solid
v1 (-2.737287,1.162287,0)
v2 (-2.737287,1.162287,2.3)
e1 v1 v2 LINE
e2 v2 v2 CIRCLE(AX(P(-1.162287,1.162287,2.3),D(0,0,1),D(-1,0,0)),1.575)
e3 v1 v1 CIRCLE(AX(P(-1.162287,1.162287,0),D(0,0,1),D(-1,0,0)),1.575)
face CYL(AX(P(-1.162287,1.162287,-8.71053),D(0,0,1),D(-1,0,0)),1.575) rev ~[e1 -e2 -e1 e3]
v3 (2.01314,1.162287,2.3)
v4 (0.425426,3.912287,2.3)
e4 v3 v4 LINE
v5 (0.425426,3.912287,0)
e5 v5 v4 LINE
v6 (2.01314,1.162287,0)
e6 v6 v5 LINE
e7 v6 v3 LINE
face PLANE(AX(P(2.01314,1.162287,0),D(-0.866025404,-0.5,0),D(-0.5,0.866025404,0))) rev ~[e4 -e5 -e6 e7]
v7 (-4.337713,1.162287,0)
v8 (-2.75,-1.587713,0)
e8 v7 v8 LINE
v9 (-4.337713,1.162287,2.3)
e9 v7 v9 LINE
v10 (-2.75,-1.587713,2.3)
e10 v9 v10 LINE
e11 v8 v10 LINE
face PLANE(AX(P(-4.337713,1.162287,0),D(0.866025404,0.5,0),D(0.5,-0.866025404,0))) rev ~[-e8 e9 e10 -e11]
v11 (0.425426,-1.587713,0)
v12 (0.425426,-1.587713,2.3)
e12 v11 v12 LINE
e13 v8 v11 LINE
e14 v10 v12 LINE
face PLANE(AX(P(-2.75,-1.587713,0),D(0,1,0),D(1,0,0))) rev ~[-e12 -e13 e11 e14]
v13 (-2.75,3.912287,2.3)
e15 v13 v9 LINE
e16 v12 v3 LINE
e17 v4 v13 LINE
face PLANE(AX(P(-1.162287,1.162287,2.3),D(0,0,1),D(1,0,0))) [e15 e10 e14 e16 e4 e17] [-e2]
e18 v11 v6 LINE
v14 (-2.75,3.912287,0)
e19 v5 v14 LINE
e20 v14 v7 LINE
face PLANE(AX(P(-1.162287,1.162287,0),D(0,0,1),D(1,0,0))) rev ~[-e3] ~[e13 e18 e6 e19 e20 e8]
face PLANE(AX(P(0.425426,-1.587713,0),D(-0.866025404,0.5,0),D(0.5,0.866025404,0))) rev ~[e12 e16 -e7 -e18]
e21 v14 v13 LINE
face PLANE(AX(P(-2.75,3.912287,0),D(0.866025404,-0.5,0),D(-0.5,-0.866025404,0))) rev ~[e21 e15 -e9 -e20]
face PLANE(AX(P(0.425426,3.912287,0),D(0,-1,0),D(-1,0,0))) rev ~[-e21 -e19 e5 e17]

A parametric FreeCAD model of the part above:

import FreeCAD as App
import Part
import Sketcher
from FreeCAD import Vector
Q = App.Units.Quantity

doc = App.newDocument("Part")
params = doc.addObject("Spreadsheet::Sheet", "Params")
for row, (alias, value) in enumerate([
    ("pad1_length", "2.3 mm"),
    ("sketch2_diameter", "3.15 mm"),
    ("hole_diameter", "3.15 mm"),
], start=1):
    params.set(f"A{row}", alias)
    params.set(f"B{row}", "=" + value)
    params.setAlias(f"B{row}", alias)

body = doc.addObject("PartDesign::Body", "Body")

# Sketch on XY plane
sketch1 = doc.addObject("Sketcher::SketchObject", "Sketch")
body.addObject(sketch1)
sketch1.AttachmentSupport = (doc.XY_Plane, [""])
sketch1.MapMode = "FlatFace"
sketch1.addGeometry(Part.LineSegment(Vector(2, 1.2, 0), Vector(0.4, 3.9, 0)), False)
sketch1.addGeometry(Part.LineSegment(Vector(0.4, 3.9, 0), Vector(-2.8, 3.9, 0)), False)
sketch1.addGeometry(Part.LineSegment(Vector(-2.8, 3.9, 0), Vector(-4.3, 1.2, 0)), False)
sketch1.addGeometry(Part.LineSegment(Vector(-4.3, 1.2, 0), Vector(-2.8, -1.6, 0)), False)
sketch1.addGeometry(Part.LineSegment(Vector(-2.8, -1.6, 0), Vector(0.4, -1.6, 0)), False)
sketch1.addGeometry(Part.LineSegment(Vector(0.4, -1.6, 0), Vector(2, 1.2, 0)), False)
sketch1.addConstraint(Sketcher.Constraint("Coincident", 0, 2, 1, 1))
sketch1.addConstraint(Sketcher.Constraint("Coincident", 1, 2, 2, 1))
sketch1.addConstraint(Sketcher.Constraint("Coincident", 2, 2, 3, 1))
sketch1.addConstraint(Sketcher.Constraint("Coincident", 3, 2, 4, 1))
sketch1.addConstraint(Sketcher.Constraint("Coincident", 4, 2, 5, 1))
sketch1.addConstraint(Sketcher.Constraint("Coincident", 5, 2, 0, 1))
sketch1.addConstraint(Sketcher.Constraint("Horizontal", 1))
sketch1.addConstraint(Sketcher.Constraint("Horizontal", 4))
sketch1.addConstraint(Sketcher.Constraint("Parallel", 0, 3))
sketch1.addConstraint(Sketcher.Constraint("Parallel", 2, 5))
sketch1.addConstraint(Sketcher.Constraint("Horizontal", 2, 2, 5, 2))
sketch1.addConstraint(Sketcher.Constraint("Vertical", 1, 2, 3, 2))
sketch1.addConstraint(Sketcher.Constraint("Vertical", 0, 2, 4, 2))
sketch1.addConstraint(Sketcher.Constraint("Angle", 0, Q("120 deg")))
sketch1.addConstraint(Sketcher.Constraint("DistanceY", 3, 2, 1, 2, 5.5))
sketch1.addConstraint(Sketcher.Constraint("DistanceX", 1, 2, -1, 1, 2.75))
sketch1.addConstraint(Sketcher.Constraint("DistanceX", 1, 2, 1, 1, 3.175426))
sketch1.addConstraint(Sketcher.Constraint("DistanceY", -1, 1, 0, 2, 3.912287))
pad1 = doc.addObject("PartDesign::Pad", "Pad")
body.addObject(pad1)
pad1.Profile = sketch1
pad1.setExpression("Length", "Params.pad1_length")

# Sketch on XY plane
sketch2 = doc.addObject("Sketcher::SketchObject", "Sketch001")
body.addObject(sketch2)
sketch2.AttachmentSupport = (doc.XY_Plane, [""])
sketch2.MapMode = "FlatFace"
sketch2.addGeometry(Part.Circle(Vector(-1.2, 1.2, 0), Vector(0, 0, 1), 1.6), False)
sketch2.addConstraint(Sketcher.Constraint("Diameter", 0, 3.15))
sketch2.addConstraint(Sketcher.Constraint("DistanceX", 0, 3, -1, 1, 1.162287))
sketch2.addConstraint(Sketcher.Constraint("DistanceY", -1, 1, 0, 3, 1.162287))
sketch2.setExpression("Constraints[0]", "Params.sketch2_diameter")
doc.recompute()
hole = doc.addObject("PartDesign::Hole", "Hole")
body.addObject(hole)
hole.Profile = sketch2
hole.ThreadType = "None"
hole.setExpression("Diameter", "Params.hole_diameter")
hole.DepthType = "ThroughAll"
hole.Reversed = True

doc.recompute()
